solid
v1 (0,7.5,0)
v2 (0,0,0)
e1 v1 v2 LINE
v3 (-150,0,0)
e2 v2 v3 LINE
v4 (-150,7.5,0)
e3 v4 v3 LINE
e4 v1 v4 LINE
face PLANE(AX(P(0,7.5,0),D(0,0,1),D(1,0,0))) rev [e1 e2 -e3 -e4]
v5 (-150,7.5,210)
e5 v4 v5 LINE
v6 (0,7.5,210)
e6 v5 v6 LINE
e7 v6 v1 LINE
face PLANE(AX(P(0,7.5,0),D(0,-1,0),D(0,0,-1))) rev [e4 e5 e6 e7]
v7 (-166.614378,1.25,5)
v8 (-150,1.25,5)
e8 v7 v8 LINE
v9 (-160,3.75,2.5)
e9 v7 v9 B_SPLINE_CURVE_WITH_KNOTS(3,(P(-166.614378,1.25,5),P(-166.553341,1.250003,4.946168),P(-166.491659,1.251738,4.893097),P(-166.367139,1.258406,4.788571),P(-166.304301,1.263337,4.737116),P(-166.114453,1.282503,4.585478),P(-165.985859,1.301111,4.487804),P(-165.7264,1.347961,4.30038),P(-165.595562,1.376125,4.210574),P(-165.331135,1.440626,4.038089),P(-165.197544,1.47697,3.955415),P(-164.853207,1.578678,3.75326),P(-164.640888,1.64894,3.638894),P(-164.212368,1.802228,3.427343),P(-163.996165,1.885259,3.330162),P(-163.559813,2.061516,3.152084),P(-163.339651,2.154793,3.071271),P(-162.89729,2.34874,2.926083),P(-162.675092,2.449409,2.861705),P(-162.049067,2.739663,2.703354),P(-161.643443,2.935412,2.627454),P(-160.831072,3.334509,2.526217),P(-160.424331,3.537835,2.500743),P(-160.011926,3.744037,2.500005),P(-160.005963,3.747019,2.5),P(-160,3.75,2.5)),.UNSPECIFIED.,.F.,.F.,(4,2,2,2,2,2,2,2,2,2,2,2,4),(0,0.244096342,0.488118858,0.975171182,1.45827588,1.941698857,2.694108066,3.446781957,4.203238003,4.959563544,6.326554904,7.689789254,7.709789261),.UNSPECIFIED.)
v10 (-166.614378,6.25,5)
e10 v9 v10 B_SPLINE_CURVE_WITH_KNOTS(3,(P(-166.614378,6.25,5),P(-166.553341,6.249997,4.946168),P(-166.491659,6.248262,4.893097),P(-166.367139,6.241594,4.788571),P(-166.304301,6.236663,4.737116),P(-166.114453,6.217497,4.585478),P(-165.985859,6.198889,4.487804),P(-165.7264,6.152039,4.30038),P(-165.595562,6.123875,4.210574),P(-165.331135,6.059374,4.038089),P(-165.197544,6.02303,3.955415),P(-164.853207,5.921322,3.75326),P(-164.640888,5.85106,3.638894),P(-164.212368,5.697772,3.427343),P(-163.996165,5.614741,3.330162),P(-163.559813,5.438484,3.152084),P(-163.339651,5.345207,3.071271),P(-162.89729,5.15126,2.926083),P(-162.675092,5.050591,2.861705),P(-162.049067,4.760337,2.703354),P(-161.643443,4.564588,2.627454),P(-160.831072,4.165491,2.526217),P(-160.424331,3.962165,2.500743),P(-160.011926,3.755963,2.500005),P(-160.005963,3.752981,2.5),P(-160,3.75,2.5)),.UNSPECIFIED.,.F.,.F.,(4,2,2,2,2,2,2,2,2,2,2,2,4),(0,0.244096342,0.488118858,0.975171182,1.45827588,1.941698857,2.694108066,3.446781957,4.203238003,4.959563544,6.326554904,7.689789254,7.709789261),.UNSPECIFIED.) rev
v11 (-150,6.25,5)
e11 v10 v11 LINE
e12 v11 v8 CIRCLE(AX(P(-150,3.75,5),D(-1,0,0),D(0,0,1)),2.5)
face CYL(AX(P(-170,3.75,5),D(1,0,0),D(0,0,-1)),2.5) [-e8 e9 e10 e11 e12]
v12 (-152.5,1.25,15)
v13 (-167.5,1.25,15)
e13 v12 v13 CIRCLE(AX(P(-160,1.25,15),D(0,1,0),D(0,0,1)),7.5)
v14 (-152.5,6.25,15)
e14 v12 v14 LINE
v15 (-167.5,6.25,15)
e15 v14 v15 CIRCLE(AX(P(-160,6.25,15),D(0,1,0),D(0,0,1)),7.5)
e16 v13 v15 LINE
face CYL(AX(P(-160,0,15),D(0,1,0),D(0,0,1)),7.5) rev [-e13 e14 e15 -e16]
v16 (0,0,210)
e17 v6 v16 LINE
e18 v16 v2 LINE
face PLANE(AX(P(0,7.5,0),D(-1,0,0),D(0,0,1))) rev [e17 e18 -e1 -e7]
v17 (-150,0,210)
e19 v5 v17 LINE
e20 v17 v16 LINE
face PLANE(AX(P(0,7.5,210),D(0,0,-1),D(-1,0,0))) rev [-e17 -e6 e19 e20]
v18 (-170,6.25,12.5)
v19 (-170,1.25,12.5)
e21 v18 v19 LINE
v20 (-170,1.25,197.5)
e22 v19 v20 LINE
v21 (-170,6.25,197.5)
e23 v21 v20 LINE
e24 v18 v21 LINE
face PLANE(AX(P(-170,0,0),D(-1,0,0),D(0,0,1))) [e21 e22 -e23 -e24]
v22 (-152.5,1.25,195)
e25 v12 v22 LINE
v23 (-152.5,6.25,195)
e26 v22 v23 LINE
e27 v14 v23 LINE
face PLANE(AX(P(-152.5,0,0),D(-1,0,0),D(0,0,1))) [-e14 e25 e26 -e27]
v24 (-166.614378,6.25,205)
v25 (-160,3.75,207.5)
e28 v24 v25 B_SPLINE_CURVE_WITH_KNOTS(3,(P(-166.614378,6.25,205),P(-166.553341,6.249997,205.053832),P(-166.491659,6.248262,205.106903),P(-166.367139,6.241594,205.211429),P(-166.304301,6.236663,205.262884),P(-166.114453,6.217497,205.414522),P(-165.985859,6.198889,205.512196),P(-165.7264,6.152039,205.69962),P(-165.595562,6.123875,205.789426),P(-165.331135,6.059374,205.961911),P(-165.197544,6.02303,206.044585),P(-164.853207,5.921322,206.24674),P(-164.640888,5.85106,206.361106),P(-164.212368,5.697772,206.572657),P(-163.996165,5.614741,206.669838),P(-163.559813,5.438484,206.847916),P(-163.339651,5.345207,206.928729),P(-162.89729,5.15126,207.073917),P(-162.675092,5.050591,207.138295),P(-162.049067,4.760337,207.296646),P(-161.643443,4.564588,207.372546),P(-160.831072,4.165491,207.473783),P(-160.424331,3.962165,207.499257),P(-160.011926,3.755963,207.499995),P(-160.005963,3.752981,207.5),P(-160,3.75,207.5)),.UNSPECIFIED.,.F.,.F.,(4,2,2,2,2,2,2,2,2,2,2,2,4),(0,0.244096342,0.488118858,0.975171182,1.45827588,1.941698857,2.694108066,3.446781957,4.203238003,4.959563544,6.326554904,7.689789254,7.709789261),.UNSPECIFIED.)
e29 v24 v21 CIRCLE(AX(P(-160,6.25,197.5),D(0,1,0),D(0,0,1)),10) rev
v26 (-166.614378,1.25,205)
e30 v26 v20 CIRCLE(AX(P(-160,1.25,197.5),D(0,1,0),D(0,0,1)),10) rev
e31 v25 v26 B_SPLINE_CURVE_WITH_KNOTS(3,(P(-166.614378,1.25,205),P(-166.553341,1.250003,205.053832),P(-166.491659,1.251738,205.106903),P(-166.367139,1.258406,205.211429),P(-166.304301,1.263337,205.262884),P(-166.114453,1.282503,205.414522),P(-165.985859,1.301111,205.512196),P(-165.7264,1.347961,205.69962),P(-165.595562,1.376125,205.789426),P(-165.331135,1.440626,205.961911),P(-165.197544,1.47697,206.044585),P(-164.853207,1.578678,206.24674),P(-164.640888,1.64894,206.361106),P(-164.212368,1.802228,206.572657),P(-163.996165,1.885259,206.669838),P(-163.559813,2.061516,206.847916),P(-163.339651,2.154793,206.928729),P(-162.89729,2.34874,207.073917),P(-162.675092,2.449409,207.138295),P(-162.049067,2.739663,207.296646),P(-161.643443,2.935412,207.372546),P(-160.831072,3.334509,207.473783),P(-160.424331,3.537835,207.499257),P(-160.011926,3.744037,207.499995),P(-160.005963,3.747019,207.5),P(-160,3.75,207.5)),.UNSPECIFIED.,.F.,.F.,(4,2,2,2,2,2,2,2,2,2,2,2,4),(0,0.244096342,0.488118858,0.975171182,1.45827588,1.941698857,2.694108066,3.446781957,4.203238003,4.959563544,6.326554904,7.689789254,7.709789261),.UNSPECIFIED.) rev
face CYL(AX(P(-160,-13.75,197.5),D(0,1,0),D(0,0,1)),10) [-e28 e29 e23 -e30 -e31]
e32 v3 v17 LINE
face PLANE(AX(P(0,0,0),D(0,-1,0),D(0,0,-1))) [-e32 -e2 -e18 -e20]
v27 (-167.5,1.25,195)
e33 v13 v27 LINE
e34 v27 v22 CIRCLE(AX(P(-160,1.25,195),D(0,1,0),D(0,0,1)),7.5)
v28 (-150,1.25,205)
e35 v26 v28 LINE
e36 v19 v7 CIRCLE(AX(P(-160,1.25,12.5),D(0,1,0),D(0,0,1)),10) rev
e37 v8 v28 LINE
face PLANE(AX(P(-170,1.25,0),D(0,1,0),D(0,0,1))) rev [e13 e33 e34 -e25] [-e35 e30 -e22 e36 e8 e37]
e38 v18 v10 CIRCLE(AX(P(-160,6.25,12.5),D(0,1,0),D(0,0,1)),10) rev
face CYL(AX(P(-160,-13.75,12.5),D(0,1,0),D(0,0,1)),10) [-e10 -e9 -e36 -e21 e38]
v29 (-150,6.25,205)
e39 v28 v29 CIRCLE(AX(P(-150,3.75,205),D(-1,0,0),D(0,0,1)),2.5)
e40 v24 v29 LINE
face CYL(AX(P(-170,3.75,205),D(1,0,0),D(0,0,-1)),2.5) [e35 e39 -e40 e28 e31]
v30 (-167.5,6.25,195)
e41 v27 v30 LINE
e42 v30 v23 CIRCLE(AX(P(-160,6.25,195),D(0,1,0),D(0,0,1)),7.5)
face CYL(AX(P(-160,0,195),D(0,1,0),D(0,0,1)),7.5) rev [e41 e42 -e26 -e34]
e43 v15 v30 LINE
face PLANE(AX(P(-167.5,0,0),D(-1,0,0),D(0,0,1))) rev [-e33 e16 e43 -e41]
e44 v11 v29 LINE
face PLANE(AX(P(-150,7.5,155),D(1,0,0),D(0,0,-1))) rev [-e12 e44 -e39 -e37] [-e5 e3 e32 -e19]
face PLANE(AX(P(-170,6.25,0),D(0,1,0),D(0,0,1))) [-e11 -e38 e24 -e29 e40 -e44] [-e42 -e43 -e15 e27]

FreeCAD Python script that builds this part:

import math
import FreeCAD as App
import Part
import Sketcher

V = App.Vector
Q = App.Units.Quantity

doc = App.newDocument("Part")
body = doc.addObject("PartDesign::Body", "Body")

sketch1 = body.newObject("Sketcher::SketchObject", "Sketch")
sketch1.AttachmentSupport = (doc.getObject("XZ_Plane"), [""])
sketch1.MapMode = "FlatFace"
sketch1.addGeometry(Part.LineSegment(V(0, 0, 0), V(-150, 0, 0)), False)
sketch1.addGeometry(Part.LineSegment(V(-150, 0, 0), V(-150, 210, 0)), False)
sketch1.addGeometry(Part.LineSegment(V(-150, 210, 0), V(0, 210, 0)), False)
sketch1.addGeometry(Part.LineSegment(V(0, 210, 0), V(0, 0, 0)), False)
sketch1.addConstraint(Sketcher.Constraint("Coincident", 0, 2, 1, 1))
sketch1.addConstraint(Sketcher.Constraint("Coincident", 1, 2, 2, 1))
sketch1.addConstraint(Sketcher.Constraint("Coincident", 2, 2, 3, 1))
sketch1.addConstraint(Sketcher.Constraint("Coincident", 3, 2, 0, 1))
sketch1.addConstraint(Sketcher.Constraint("Horizontal", 0))
sketch1.addConstraint(Sketcher.Constraint("Vertical", 1))
sketch1.addConstraint(Sketcher.Constraint("Horizontal", 2))
sketch1.addConstraint(Sketcher.Constraint("Vertical", 3))
sketch1.addConstraint(Sketcher.Constraint("Coincident", 3, 2, -1, 1))
sketch1.addConstraint(Sketcher.Constraint("DistanceX", 0, 2, 0, 1, Q("150 mm")))
sketch1.addConstraint(Sketcher.Constraint("DistanceY", 1, 1, 1, 2, Q("210 mm")))
pad1 = body.newObject("PartDesign::Pad", "Pad")
pad1.Profile = sketch1
pad1.Length = 7.5
pad1.Reversed = True

sketch2 = body.newObject("Sketcher::SketchObject", "Sketch001")
sketch2.AttachmentSupport = (doc.getObject("YZ_Plane"), [""])
sketch2.MapMode = "FlatFace"
sketch2.AttachmentOffset = App.Placement(V(0, 0, -150), App.Rotation())
sketch2.addGeometry(Part.LineSegment(V(6.25, 205, 0), V(6.25, 5, 0)), False)
sketch2.addGeometry(Part.ArcOfCircle(Part.Circle(V(3.75, 5, 0), V(0, 0, 1), 2.5), math.radians(180), math.radians(360)), False)
sketch2.addGeometry(Part.LineSegment(V(1.25, 5, 0), V(1.25, 205, 0)), False)
sketch2.addGeometry(Part.ArcOfCircle(Part.Circle(V(3.75, 205, 0), V(0, 0, 1), 2.5), math.radians(0), math.radians(180)), False)
sketch2.addConstraint(Sketcher.Constraint("Tangent", 0, 2, 1, 2))
sketch2.addConstraint(Sketcher.Constraint("Tangent", 1, 1, 2, 1))
sketch2.addConstraint(Sketcher.Constraint("Tangent", 2, 2, 3, 2))
sketch2.addConstraint(Sketcher.Constraint("Tangent", 3, 1, 0, 1))
sketch2.addConstraint(Sketcher.Constraint("Vertical", 0))
sketch2.addConstraint(Sketcher.Constraint("Vertical", 2))
sketch2.addConstraint(Sketcher.Constraint("Radius", 1, Q("2.5 mm")))
sketch2.addConstraint(Sketcher.Constraint("DistanceY", 0, 2, 0, 1, Q("200 mm")))
sketch2.addConstraint(Sketcher.Constraint("DistanceY", -1, 1, 1, 3, Q("5 mm")))
sketch2.addConstraint(Sketcher.Constraint("DistanceX", -1, 1, 1, 3, Q("3.75 mm")))
pad2 = body.newObject("PartDesign::Pad", "Pad001")
pad2.Profile = sketch2
pad2.Length = 20
pad2.Reversed = True

sketch3 = body.newObject("Sketcher::SketchObject", "Sketch002")
sketch3.AttachmentSupport = (doc.getObject("XZ_Plane"), [""])
sketch3.MapMode = "FlatFace"
sketch3.AttachmentOffset = App.Placement(V(0, 0, -6.25), App.Rotation())
sketch3.addGeometry(Part.LineSegment(V(-167.5, 15, 0), V(-167.5, 195, 0)), False)
sketch3.addGeometry(Part.ArcOfCircle(Part.Circle(V(-160, 195, 0), V(0, 0, 1), 7.5), math.radians(0), math.radians(180)), False)
sketch3.addGeometry(Part.LineSegment(V(-152.5, 195, 0), V(-152.5, 15, 0)), False)
sketch3.addGeometry(Part.ArcOfCircle(Part.Circle(V(-160, 15, 0), V(0, 0, 1), 7.5), math.radians(180), math.radians(360)), False)
sketch3.addConstraint(Sketcher.Constraint("Tangent", 0, 2, 1, 2))
sketch3.addConstraint(Sketcher.Constraint("Tangent", 1, 1, 2, 1))
sketch3.addConstraint(Sketcher.Constraint("Tangent", 2, 2, 3, 2))
sketch3.addConstraint(Sketcher.Constraint("Tangent", 3, 1, 0, 1))
sketch3.addConstraint(Sketcher.Constraint("Vertical", 0))
sketch3.addConstraint(Sketcher.Constraint("Vertical", 2))
sketch3.addConstraint(Sketcher.Constraint("Radius", 1, Q("7.5 mm")))
sketch3.addConstraint(Sketcher.Constraint("DistanceY", 0, 1, 0, 2, Q("180 mm")))
sketch3.addConstraint(Sketcher.Constraint("DistanceX", 1, 3, -1, 1, Q("160 mm")))
sketch3.addConstraint(Sketcher.Constraint("DistanceY", -1, 1, 1, 3, Q("195 mm")))
pocket1 = body.newObject("PartDesign::Pocket", "Pocket")
pocket1.Profile = sketch3
pocket1.Type = "ThroughAll"
pocket1.Reversed = True

sketch4 = body.newObject("Sketcher::SketchObject", "Sketch003")
sketch4.AttachmentSupport = (doc.getObject("XZ_Plane"), [""])
sketch4.MapMode = "FlatFace"
sketch4.AttachmentOffset = App.Placement(V(0, 0, -6.25), App.Rotation())
sketch4.addGeometry(Part.ArcOfCircle(Part.Circle(V(-160, 12.5, 0), V(0, 0, 1), 10), math.radians(-131.409622), math.radians(-90)), False)
sketch4.addGeometry(Part.LineSegment(V(-160, 2.5, 0), V(-170, 2.5, 0)), False)
sketch4.addGeometry(Part.LineSegment(V(-170, 2.5, 0), V(-170, 12.5, 0)), False)
sketch4.addGeometry(Part.ArcOfCircle(Part.Circle(V(-160, 12.5, 0), V(0, 0, 1), 10), math.radians(180), math.radians(228.590378)), False)
sketch4.addGeometry(Part.ArcOfCircle(Part.Circle(V(-160, 197.5, 0), V(0, 0, 1), 10), math.radians(90), math.radians(131.409622)), False)
sketch4.addGeometry(Part.ArcOfCircle(Part.Circle(V(-160, 197.5, 0), V(0, 0, 1), 10), math.radians(131.409622), math.radians(180)), False)
sketch4.addGeometry(Part.LineSegment(V(-170, 197.5, 0), V(-170, 207.5, 0)), False)
sketch4.addGeometry(Part.LineSegment(V(-170, 207.5, 0), V(-160, 207.5, 0)), False)
sketch4.addConstraint(Sketcher.Constraint("Tangent", 0, 2, 1, 1))
sketch4.addConstraint(Sketcher.Constraint("Coincident", 1, 2, 2, 1))
sketch4.addConstraint(Sketcher.Constraint("Tangent", 2, 2, 3, 1))
sketch4.addConstraint(Sketcher.Constraint("Tangent", 3, 2, 0, 1))
sketch4.addConstraint(Sketcher.Constraint("Tangent", 4, 2, 5, 1))
sketch4.addConstraint(Sketcher.Constraint("Tangent", 5, 2, 6, 1))
sketch4.addConstraint(Sketcher.Constraint("Coincident", 6, 2, 7, 1))
sketch4.addConstraint(Sketcher.Constraint("Tangent", 7, 2, 4, 1))
sketch4.addConstraint(Sketcher.Constraint("Horizontal", 1))
sketch4.addConstraint(Sketcher.Constraint("Vertical", 2))
sketch4.addConstraint(Sketcher.Constraint("Vertical", 6))
sketch4.addConstraint(Sketcher.Constraint("Horizontal", 7))
sketch4.addConstraint(Sketcher.Constraint("Equal", 0, 3))
sketch4.addConstraint(Sketcher.Constraint("Equal", 3, 4))
sketch4.addConstraint(Sketcher.Constraint("Equal", 4, 5))
sketch4.addConstraint(Sketcher.Constraint("Vertical", 3, 3, 4, 3))
sketch4.addConstraint(Sketcher.Constraint("Vertical", 3, 2, 4, 2))
sketch4.addConstraint(Sketcher.Constraint("Radius", 0, Q("10 mm")))
sketch4.addConstraint(Sketcher.Constraint("DistanceX", 0, 3, -1, 1, Q("160 mm")))
sketch4.addConstraint(Sketcher.Constraint("DistanceY", -1, 1, 3, 2, Q("5 mm")))
sketch4.addConstraint(Sketcher.Constraint("DistanceY", -1, 1, 4, 2, Q("205 mm")))
sketch4.addConstraint(Sketcher.Constraint("DistanceY", 0, 3, 4, 3, Q("185 mm")))
pocket2 = body.newObject("PartDesign::Pocket", "Pocket001")
pocket2.Profile = sketch4
pocket2.Length = 20
pocket2.Reversed = True

doc.recompute()
